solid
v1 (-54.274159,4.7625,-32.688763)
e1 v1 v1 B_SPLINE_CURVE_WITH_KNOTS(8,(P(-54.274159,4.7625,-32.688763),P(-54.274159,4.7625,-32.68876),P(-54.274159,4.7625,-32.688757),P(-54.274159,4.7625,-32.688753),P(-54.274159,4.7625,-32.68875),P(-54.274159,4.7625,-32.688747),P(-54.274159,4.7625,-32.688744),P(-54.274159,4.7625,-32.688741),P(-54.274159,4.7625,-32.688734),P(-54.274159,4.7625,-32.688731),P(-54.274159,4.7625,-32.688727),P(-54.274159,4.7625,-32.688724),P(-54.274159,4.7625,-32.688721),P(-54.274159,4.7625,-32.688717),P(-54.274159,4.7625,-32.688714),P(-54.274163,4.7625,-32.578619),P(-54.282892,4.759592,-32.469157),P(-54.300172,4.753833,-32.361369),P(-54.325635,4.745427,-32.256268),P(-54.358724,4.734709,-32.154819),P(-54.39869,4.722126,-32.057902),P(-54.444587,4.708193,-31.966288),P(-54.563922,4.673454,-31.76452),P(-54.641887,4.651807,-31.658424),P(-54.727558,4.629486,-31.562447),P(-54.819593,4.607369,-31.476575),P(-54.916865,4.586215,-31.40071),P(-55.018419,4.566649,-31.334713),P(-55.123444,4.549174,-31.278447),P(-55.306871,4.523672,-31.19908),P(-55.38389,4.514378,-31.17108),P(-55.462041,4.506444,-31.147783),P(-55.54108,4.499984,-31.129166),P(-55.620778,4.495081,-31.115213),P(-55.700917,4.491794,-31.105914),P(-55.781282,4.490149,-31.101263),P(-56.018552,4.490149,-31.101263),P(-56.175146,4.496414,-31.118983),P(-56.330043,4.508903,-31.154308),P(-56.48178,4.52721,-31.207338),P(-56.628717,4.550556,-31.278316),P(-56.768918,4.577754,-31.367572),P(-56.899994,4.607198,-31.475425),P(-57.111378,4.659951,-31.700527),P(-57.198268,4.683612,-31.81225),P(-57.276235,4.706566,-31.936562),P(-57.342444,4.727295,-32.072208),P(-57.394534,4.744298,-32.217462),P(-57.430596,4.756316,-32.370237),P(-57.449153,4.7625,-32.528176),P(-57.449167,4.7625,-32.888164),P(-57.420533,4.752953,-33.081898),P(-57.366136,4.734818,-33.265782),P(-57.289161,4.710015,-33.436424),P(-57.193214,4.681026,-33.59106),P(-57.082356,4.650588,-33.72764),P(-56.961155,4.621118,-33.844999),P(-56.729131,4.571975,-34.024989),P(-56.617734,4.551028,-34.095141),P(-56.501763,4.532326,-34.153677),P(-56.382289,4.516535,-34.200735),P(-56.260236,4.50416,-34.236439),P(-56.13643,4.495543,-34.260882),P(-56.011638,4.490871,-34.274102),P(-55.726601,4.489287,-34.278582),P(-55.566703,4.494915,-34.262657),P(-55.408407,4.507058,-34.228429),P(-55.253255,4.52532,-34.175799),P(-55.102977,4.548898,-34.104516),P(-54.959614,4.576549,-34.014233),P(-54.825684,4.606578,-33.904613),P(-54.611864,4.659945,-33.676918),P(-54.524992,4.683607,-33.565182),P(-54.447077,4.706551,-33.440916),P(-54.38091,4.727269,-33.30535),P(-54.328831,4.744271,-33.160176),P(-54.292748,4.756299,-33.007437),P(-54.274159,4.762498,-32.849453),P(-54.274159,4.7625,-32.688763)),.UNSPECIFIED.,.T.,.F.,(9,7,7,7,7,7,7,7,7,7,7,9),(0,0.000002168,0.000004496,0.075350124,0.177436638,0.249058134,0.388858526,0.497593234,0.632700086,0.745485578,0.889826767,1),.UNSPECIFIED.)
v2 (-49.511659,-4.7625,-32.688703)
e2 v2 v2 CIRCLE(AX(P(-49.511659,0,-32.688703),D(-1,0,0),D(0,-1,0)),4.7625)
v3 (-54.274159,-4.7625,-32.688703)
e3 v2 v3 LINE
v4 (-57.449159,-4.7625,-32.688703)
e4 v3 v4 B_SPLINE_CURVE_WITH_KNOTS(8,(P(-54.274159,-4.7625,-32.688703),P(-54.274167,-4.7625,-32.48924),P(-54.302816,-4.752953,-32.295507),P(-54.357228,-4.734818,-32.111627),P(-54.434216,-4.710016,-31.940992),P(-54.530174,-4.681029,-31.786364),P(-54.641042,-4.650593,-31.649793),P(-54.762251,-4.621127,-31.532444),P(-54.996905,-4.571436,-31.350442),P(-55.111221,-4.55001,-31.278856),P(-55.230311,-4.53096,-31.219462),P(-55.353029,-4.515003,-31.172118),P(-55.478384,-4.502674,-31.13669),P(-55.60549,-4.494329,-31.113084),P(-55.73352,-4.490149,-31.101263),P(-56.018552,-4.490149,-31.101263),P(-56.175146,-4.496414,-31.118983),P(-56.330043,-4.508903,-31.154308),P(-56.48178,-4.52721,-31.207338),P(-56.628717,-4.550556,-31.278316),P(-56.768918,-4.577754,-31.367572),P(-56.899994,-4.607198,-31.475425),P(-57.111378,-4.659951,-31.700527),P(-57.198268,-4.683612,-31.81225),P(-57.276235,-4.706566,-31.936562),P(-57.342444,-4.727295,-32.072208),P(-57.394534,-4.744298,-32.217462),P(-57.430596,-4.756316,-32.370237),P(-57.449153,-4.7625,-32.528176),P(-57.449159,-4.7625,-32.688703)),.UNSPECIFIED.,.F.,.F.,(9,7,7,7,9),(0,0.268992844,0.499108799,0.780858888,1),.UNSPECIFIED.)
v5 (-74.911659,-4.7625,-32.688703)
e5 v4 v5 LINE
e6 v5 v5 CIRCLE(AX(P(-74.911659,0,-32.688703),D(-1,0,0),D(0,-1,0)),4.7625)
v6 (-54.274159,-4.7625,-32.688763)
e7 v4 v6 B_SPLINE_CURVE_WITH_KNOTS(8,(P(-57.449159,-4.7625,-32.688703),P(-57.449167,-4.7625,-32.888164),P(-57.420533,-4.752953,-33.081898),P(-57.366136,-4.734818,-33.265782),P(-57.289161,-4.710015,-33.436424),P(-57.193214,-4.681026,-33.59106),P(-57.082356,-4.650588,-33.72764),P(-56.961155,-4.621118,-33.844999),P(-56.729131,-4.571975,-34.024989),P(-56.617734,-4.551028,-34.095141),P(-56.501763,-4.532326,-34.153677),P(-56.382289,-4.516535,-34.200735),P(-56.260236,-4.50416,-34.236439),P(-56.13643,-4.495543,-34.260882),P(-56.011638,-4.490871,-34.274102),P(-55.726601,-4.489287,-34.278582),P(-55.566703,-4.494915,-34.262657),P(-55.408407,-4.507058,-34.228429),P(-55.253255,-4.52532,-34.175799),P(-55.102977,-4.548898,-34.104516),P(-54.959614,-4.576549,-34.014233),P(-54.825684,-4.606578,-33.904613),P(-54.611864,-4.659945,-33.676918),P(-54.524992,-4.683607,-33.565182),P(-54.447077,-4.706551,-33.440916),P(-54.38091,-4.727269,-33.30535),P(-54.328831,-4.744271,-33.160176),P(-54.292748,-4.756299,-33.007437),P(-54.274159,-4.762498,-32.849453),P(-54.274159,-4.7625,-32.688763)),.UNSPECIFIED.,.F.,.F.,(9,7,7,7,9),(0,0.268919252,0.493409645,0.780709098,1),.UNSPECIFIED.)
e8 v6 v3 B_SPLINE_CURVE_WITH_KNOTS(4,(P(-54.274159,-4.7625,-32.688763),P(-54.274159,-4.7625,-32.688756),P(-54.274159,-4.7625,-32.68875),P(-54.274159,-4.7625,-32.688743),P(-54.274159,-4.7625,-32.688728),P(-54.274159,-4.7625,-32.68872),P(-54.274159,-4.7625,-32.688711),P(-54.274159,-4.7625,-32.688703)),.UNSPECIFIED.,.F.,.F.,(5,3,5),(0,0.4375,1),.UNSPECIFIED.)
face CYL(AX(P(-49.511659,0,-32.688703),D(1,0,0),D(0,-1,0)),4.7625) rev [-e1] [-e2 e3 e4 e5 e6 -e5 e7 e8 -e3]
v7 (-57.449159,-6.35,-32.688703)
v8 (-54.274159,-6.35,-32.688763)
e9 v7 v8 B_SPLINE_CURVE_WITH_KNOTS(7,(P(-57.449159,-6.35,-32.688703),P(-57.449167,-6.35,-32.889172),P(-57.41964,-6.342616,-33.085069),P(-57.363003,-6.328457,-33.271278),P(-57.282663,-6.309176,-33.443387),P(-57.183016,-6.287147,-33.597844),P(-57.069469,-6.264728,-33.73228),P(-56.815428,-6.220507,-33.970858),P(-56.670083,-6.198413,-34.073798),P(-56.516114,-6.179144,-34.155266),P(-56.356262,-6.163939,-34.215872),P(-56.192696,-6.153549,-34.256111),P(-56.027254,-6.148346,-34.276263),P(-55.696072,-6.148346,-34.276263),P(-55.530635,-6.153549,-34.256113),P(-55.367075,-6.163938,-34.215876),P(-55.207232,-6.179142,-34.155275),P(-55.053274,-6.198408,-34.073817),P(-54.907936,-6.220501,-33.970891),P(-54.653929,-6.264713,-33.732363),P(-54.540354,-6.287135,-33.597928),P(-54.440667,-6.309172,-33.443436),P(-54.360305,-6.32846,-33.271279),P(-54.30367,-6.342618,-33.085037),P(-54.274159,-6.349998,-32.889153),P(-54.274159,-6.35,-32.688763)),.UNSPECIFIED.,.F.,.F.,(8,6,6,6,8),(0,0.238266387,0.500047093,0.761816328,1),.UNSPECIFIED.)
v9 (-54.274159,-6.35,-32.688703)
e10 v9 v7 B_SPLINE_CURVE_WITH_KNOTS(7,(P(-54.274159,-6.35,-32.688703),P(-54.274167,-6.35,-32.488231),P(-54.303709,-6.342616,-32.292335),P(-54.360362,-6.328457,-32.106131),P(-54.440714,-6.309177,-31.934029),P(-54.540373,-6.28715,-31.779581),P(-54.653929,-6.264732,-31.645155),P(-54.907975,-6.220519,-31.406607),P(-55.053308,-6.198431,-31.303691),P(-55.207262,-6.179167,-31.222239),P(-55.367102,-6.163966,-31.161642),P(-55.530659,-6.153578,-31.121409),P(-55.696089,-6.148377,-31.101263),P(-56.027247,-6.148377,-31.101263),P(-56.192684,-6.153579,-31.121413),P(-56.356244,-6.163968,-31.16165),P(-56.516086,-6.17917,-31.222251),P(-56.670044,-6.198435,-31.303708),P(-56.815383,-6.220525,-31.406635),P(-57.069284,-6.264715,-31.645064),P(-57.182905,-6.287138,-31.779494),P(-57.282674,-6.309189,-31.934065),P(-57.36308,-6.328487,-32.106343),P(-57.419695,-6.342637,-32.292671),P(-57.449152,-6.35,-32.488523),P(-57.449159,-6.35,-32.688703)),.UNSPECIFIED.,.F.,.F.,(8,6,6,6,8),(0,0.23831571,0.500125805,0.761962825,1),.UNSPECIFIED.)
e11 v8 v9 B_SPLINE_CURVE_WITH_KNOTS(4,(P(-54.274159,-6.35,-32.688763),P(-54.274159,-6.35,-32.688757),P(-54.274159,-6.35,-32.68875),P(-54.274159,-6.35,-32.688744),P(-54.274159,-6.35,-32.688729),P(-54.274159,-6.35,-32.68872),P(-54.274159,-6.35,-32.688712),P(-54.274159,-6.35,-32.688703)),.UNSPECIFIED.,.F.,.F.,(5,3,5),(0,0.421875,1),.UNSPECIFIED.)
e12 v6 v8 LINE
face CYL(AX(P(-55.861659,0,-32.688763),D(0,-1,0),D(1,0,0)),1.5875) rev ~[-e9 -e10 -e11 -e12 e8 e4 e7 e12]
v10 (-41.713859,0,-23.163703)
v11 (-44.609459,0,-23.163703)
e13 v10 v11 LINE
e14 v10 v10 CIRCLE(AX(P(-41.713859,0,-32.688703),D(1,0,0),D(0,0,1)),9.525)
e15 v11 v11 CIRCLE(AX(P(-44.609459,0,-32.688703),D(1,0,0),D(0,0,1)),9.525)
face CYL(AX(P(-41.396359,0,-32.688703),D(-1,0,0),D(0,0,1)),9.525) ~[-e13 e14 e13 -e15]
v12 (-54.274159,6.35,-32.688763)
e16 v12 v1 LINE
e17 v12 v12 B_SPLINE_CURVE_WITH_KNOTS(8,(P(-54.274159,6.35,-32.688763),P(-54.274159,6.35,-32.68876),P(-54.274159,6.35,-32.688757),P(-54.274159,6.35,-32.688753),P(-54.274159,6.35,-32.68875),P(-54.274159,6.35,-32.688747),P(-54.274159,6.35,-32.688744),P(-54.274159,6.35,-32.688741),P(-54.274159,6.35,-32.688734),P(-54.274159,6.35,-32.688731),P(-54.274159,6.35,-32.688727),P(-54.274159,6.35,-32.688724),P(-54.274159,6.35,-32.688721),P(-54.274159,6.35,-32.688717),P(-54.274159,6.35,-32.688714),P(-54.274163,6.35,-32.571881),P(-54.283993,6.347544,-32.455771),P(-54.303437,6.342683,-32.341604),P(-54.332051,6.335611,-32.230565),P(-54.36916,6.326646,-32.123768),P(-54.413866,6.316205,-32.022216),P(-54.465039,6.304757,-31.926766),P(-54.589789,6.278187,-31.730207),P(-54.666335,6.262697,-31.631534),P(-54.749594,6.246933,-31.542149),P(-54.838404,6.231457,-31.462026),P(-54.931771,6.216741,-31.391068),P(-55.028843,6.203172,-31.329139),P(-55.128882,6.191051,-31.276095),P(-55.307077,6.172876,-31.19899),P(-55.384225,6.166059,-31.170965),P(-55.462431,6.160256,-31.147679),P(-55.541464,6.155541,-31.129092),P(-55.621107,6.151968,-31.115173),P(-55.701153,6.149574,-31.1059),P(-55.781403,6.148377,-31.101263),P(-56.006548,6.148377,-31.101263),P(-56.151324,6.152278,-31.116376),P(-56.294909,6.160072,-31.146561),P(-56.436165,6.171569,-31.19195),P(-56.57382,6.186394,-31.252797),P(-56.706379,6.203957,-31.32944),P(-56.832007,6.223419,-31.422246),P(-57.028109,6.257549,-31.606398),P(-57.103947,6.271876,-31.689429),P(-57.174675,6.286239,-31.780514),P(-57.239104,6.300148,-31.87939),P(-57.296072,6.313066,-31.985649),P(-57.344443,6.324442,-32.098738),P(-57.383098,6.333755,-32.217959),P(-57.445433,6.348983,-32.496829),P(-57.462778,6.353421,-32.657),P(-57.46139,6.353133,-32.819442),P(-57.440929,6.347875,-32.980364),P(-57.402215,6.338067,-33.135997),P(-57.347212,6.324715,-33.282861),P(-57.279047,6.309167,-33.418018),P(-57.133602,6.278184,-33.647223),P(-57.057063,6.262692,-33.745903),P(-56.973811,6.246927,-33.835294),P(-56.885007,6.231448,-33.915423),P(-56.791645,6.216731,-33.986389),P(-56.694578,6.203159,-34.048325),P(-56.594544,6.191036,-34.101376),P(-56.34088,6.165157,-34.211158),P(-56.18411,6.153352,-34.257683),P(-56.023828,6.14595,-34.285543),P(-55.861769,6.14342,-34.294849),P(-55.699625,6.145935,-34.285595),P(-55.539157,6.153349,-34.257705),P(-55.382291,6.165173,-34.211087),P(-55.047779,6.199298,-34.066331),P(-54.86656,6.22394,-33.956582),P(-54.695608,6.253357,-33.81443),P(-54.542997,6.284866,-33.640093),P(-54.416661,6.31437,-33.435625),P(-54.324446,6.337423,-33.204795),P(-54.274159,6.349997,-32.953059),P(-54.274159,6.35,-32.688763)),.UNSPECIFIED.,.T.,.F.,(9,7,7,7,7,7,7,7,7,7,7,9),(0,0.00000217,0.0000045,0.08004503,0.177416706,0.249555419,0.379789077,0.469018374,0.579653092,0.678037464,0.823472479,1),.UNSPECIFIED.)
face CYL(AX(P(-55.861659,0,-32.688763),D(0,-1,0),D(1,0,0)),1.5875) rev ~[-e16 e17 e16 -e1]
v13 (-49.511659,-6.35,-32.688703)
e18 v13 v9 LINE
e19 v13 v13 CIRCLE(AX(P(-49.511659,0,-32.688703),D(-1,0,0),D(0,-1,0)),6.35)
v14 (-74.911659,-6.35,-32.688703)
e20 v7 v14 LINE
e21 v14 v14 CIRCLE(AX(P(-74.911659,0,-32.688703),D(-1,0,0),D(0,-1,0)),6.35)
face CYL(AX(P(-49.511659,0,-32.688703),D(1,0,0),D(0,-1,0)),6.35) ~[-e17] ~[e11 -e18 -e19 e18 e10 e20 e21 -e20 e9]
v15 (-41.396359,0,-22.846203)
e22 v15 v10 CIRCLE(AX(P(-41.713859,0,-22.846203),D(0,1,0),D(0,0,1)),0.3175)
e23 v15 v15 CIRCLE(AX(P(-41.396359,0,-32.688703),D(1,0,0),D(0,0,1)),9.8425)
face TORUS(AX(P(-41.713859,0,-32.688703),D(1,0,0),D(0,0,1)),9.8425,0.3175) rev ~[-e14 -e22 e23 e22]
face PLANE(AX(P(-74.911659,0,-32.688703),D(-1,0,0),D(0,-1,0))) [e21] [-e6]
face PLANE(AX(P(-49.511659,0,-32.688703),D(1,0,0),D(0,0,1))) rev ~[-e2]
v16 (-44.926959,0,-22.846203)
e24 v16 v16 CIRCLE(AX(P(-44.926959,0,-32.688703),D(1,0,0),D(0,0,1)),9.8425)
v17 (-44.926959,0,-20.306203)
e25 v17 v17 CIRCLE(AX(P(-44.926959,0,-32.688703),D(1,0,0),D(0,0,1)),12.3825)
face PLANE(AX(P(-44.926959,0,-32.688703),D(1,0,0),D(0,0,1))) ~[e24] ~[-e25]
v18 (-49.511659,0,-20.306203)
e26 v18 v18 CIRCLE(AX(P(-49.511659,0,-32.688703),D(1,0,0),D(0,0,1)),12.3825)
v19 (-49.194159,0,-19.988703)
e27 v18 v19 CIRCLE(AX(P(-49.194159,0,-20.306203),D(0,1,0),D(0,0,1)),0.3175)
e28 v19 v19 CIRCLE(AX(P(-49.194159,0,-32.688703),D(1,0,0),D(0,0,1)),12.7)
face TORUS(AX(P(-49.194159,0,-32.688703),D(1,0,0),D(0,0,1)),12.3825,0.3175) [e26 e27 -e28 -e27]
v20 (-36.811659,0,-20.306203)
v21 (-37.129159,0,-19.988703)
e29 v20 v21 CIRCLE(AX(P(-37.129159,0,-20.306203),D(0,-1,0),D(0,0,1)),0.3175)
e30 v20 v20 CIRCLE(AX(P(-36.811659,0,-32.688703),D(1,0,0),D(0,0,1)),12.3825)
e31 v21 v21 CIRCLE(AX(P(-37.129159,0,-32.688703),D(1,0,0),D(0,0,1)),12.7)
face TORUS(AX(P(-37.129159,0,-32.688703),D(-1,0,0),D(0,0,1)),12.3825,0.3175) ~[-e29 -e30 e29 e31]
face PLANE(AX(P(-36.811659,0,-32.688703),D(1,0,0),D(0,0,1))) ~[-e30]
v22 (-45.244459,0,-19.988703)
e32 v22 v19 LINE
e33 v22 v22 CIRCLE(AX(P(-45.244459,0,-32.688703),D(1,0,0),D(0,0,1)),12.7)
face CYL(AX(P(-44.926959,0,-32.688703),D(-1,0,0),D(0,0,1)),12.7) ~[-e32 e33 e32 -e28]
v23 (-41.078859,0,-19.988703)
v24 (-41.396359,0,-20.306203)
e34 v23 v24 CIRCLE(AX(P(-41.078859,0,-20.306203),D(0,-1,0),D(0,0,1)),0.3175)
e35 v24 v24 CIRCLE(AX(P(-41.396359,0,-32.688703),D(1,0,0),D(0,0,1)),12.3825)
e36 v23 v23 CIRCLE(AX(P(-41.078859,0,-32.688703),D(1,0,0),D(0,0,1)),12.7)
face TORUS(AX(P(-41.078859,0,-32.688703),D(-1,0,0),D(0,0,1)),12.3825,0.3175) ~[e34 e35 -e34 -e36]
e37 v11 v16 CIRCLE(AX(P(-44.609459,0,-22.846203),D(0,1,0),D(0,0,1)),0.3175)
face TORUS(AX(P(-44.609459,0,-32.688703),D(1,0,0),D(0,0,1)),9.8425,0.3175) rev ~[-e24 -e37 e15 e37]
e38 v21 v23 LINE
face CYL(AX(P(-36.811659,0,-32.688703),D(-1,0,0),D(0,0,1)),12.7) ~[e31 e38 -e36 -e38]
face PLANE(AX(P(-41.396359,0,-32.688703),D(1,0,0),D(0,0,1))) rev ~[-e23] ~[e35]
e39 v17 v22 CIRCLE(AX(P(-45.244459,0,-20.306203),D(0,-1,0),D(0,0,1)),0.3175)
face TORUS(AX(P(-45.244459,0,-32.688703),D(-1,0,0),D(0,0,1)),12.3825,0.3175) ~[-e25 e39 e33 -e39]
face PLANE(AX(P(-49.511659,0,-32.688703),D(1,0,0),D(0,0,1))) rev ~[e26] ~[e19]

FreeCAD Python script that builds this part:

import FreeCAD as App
import Part
import Sketcher
from FreeCAD import Vector
Q = App.Units.Quantity


def edges_at(feature, points):
    """Names of the edges that pass closest to the given points."""
    edges = feature.Shape.Edges
    near = lambda p: min(range(len(edges)), key=lambda i: edges[i].distToShape(Part.Vertex(*p))[0])
    return sorted({f"Edge{near(p) + 1}" for p in points})


def add_polygon(sketch, points):
    """Adds a closed chain of lines whose ends are joined by coincident constraints."""
    first, n = sketch.GeometryCount, len(points)
    for a, b in zip(points, points[1:] + points[:1]):
        sketch.addGeometry(Part.LineSegment(App.Vector(*a, 0), App.Vector(*b, 0)), False)
    for i in range(n):
        sketch.addConstraint(Sketcher.Constraint("Coincident", first + i, 2, first + (i + 1) % n, 1))

doc = App.newDocument("Part")
params = doc.addObject("Spreadsheet::Sheet", "Params")
for row, (alias, value) in enumerate([
    ("sketch1_width", "0.5 in"),
    ("sketch1_width2", "0.139 in"),
    ("sketch1_height", "0.125 in"),
    ("revolution_angle", "360 deg"),
    ("fillet_radius", "0.0125 in"),
    ("sketch2_diameter", "0.5 in"),
    ("sketch2_diameter2", "0.375 in"),
    ("pad1_length", "1 in"),
    ("sketch3_diameter", "0.125 in"),
    ("pocket1_length", "1 in"),
], start=1):
    params.set(f"A{row}", alias)
    params.set(f"B{row}", "=" + value)
    params.setAlias(f"B{row}", alias)

body = doc.addObject("PartDesign::Body", "Body")

# Sketch on XZ plane
sketch1 = body.newObject("Sketcher::SketchObject", "Sketch")
sketch1.AttachmentSupport = (doc.getObject("XZ_Plane"), [""])
sketch1.MapMode = "FlatFace"
add_polygon(sketch1, [(-49.5, -20), (-49.5, -32.7), (-36.8, -32.7), (-36.8, -20), (-41.4, -20), (-41.4, -23.2), (-44.9, -23.2), (-44.9, -20)])  # lines 0-7
sketch1.addGeometry(Part.LineSegment(Vector(-49.5, -32.7, 0), Vector(-36.8, -32.7, 0)), True)  # axis
sketch1.addConstraint([
    Sketcher.Constraint("Vertical", 0),
    Sketcher.Constraint("Horizontal", 1),
    Sketcher.Constraint("Vertical", 2),
    Sketcher.Constraint("Horizontal", 3),
    Sketcher.Constraint("Vertical", 4),
    Sketcher.Constraint("Horizontal", 5),
    Sketcher.Constraint("Vertical", 6),
    Sketcher.Constraint("Horizontal", 7),
    Sketcher.Constraint("Horizontal", 8),
    Sketcher.Constraint("Coincident", 8, 1, 0, 2),
    Sketcher.Constraint("Horizontal", 3, 2, 6, 2),
    Sketcher.Constraint("Vertical", 2, 2, 8, 2),
    Sketcher.Constraint("Equal", 3, 7),
    Sketcher.Constraint("Equal", 8, 0),
    Sketcher.Constraint("DistanceX", 1, 1, 1, 2, Q("0.5 in")),
    Sketcher.Constraint("DistanceX", 5, 2, 5, 1, Q("0.139 in")),
    Sketcher.Constraint("DistanceY", 4, 2, 4, 1, Q("0.125 in")),
    Sketcher.Constraint("DistanceX", 0, 2, -1, 1, 49.511659),
    Sketcher.Constraint("DistanceY", 0, 2, -1, 1, 32.688703),
])
sketch1.setExpression("Constraints[22]", "Params.sketch1_width")
sketch1.setExpression("Constraints[23]", "Params.sketch1_width2")
sketch1.setExpression("Constraints[24]", "Params.sketch1_height")
revolution = body.newObject("PartDesign::Revolution", "Revolution")
revolution.Profile = sketch1
revolution.ReferenceAxis = (sketch1, ["Axis0"])
revolution.setExpression("Angle", "Params.revolution_angle")
doc.recompute()

fillet = body.newObject("PartDesign::Fillet", "Fillet")
fillet.Base = (revolution, edges_at(revolution, [
    (-36.812, 0, -45.389),
    (-41.396, 0, -45.389),
    (-44.927, 0, -45.389),
    (-49.512, 0, -45.389),
    (-44.927, 0, -42.214),
    (-41.396, 0, -42.214),
]))
fillet.setExpression("Radius", "Params.fillet_radius")

# Sketch on YZ plane
sketch2 = body.newObject("Sketcher::SketchObject", "Sketch001")
sketch2.AttachmentSupport = (doc.getObject("YZ_Plane"), [""])
sketch2.MapMode = "FlatFace"
sketch2.AttachmentOffset = App.Placement(Vector(0, 0, -49.511659), App.Rotation())
sketch2.addGeometry([
    Part.Circle(Vector(0, -32.7, 0), Vector(0, 0, 1), 6.3),
    Part.Circle(Vector(0, -32.7, 0), Vector(0, 0, 1), 4.8),
], False)
sketch2.addConstraint([
    Sketcher.Constraint("Coincident", 1, 3, 0, 3),
    Sketcher.Constraint("PointOnObject", 0, 3, -2),
    Sketcher.Constraint("Diameter", 0, Q("0.5 in")),
    Sketcher.Constraint("Diameter", 1, Q("0.375 in")),
    Sketcher.Constraint("DistanceY", 0, 3, -1, 1, 32.688703),
])
sketch2.setExpression("Constraints[2]", "Params.sketch2_diameter")
sketch2.setExpression("Constraints[3]", "Params.sketch2_diameter2")
pad1 = body.newObject("PartDesign::Pad", "Pad")
pad1.Profile = sketch2
pad1.setExpression("Length", "Params.pad1_length")
pad1.Reversed = True

# Sketch on XZ plane
sketch3 = body.newObject("Sketcher::SketchObject", "Sketch002")
sketch3.AttachmentSupport = (doc.getObject("XZ_Plane"), [""])
sketch3.MapMode = "FlatFace"
sketch3.addGeometry(Part.Circle(Vector(-55.9, -32.7, 0), Vector(0, 0, 1), 1.6), False)
sketch3.addConstraint([
    Sketcher.Constraint("Diameter", 0, Q("0.125 in")),
    Sketcher.Constraint("DistanceX", 0, 3, -1, 1, 55.861659),
    Sketcher.Constraint("DistanceY", 0, 3, -1, 1, 32.688763),
])
sketch3.setExpression("Constraints[0]", "Params.sketch3_diameter")
pocket1 = body.newObject("PartDesign::Pocket", "Pocket")
pocket1.Profile = sketch3
pocket1.setExpression("Length", "Params.pocket1_length")
pocket1.Midplane = True

doc.recompute()
